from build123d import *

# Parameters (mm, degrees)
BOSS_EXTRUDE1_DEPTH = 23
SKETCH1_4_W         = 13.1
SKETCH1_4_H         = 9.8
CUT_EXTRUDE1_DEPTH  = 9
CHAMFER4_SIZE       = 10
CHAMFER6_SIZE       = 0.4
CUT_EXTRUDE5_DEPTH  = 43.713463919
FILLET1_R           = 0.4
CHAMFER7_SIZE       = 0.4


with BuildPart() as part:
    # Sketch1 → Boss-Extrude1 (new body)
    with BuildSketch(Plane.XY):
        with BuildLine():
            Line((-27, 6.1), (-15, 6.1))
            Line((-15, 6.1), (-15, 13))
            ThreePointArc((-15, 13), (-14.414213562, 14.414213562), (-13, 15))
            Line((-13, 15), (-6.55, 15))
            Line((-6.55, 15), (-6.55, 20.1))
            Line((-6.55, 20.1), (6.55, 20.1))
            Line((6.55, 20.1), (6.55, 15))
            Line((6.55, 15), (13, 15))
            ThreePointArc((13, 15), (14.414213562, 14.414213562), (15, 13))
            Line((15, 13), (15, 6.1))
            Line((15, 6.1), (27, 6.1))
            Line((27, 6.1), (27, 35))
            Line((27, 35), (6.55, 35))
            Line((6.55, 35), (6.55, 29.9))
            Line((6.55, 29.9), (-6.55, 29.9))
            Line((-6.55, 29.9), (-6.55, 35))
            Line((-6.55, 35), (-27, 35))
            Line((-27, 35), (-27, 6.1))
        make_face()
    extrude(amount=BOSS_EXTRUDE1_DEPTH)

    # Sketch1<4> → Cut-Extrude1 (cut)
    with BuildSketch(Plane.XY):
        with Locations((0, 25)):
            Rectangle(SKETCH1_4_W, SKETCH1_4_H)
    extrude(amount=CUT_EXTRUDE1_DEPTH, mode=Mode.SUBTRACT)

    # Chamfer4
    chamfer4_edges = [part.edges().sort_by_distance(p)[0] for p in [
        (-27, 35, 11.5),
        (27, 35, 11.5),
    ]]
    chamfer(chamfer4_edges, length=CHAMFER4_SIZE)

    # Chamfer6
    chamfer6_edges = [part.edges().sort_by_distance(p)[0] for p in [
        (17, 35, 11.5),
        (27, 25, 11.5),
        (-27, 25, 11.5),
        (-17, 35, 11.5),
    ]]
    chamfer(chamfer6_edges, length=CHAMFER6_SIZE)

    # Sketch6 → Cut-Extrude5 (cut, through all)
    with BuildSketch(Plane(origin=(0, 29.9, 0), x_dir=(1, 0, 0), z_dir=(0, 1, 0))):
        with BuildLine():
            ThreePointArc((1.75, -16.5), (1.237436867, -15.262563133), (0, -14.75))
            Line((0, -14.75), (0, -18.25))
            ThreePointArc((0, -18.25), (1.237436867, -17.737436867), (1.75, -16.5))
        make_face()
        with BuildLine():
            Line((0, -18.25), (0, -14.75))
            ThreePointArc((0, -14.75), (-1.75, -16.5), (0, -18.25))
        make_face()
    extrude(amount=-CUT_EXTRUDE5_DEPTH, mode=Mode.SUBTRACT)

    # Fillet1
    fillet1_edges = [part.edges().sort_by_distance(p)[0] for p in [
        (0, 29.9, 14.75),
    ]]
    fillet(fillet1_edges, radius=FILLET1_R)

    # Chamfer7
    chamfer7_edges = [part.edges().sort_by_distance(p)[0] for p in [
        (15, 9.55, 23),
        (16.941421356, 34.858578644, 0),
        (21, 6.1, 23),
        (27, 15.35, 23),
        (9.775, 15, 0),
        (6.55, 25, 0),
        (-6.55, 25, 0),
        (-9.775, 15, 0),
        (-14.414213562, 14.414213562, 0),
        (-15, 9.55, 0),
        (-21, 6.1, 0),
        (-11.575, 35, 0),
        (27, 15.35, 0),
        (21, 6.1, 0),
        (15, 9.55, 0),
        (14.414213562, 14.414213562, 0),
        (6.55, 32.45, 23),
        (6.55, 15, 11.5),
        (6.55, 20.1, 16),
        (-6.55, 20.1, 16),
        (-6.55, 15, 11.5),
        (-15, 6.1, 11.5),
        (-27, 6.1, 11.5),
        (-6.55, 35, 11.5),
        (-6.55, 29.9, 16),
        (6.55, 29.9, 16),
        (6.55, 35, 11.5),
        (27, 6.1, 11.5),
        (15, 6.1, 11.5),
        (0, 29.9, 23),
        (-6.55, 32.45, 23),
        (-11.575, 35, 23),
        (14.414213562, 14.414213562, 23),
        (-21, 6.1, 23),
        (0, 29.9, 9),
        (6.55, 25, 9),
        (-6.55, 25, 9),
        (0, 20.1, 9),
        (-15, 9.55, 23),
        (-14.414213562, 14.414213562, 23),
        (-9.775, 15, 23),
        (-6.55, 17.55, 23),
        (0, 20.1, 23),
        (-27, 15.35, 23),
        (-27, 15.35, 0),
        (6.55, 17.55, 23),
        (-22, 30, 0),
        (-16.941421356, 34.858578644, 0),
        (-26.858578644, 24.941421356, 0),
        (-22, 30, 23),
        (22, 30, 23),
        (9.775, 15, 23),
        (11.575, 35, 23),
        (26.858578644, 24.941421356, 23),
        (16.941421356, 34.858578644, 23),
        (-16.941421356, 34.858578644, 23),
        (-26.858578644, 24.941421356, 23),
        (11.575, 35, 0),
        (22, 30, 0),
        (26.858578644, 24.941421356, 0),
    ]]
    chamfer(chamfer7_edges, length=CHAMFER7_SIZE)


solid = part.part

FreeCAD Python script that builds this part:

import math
import FreeCAD as App
import Part
import Sketcher
Q = App.Units.Quantity


def edges_at(feature, points):
    """Names of the edges that pass closest to the given points."""
    edges = feature.Shape.Edges
    near = lambda p: min(range(len(edges)), key=lambda i: edges[i].distToShape(Part.Vertex(*p))[0])
    return sorted({f"Edge{near(p) + 1}" for p in points})

doc = App.newDocument("Part")
body = doc.addObject("PartDesign::Body", "Body")

sketch1 = doc.addObject("Sketcher::SketchObject", "Sketch")
body.addObject(sketch1)
sketch1.AttachmentSupport = (doc.XY_Plane, [""])
sketch1.MapMode = "FlatFace"
sketch1.addGeometry(Part.LineSegment(App.Vector(-27, 6.1, 0), App.Vector(-15, 6.1, 0)), False)
sketch1.addGeometry(Part.LineSegment(App.Vector(-15, 6.1, 0), App.Vector(-15, 13, 0)), False)
sketch1.addGeometry(Part.ArcOfCircle(Part.Circle(App.Vector(-13, 13, 0), App.Vector(0, 0, 1), 2), math.radians(90), math.radians(180)), False)
sketch1.addGeometry(Part.LineSegment(App.Vector(-13, 15, 0), App.Vector(-6.5, 15, 0)), False)
sketch1.addGeometry(Part.LineSegment(App.Vector(-6.5, 15, 0), App.Vector(-6.5, 20.1, 0)), False)
sketch1.addGeometry(Part.LineSegment(App.Vector(-6.5, 20.1, 0), App.Vector(6.5, 20.1, 0)), False)
sketch1.addGeometry(Part.LineSegment(App.Vector(6.5, 20.1, 0), App.Vector(6.5, 15, 0)), False)
sketch1.addGeometry(Part.LineSegment(App.Vector(6.5, 15, 0), App.Vector(13, 15, 0)), False)
sketch1.addGeometry(Part.ArcOfCircle(Part.Circle(App.Vector(13, 13, 0), App.Vector(0, 0, 1), 2), math.radians(0), math.radians(90)), False)
sketch1.addGeometry(Part.LineSegment(App.Vector(15, 13, 0), App.Vector(15, 6.1, 0)), False)
sketch1.addGeometry(Part.LineSegment(App.Vector(15, 6.1, 0), App.Vector(27, 6.1, 0)), False)
sketch1.addGeometry(Part.LineSegment(App.Vector(27, 6.1, 0), App.Vector(27, 35, 0)), False)
sketch1.addGeometry(Part.LineSegment(App.Vector(27, 35, 0), App.Vector(6.5, 35, 0)), False)
sketch1.addGeometry(Part.LineSegment(App.Vector(6.5, 35, 0), App.Vector(6.5, 29.9, 0)), False)
sketch1.addGeometry(Part.LineSegment(App.Vector(6.5, 29.9, 0), App.Vector(-6.5, 29.9, 0)), False)
sketch1.addGeometry(Part.LineSegment(App.Vector(-6.5, 29.9, 0), App.Vector(-6.5, 35, 0)), False)
sketch1.addGeometry(Part.LineSegment(App.Vector(-6.5, 35, 0), App.Vector(-27, 35, 0)), False)
sketch1.addGeometry(Part.LineSegment(App.Vector(-27, 35, 0), App.Vector(-27, 6.1, 0)), False)
sketch1.addConstraint(Sketcher.Constraint("Coincident", 0, 2, 1, 1))
sketch1.addConstraint(Sketcher.Constraint("Tangent", 1, 2, 2, 2))
sketch1.addConstraint(Sketcher.Constraint("Tangent", 2, 1, 3, 1))
sketch1.addConstraint(Sketcher.Constraint("Coincident", 3, 2, 4, 1))
sketch1.addConstraint(Sketcher.Constraint("Coincident", 4, 2, 5, 1))
sketch1.addConstraint(Sketcher.Constraint("Coincident", 5, 2, 6, 1))
sketch1.addConstraint(Sketcher.Constraint("Coincident", 6, 2, 7, 1))
sketch1.addConstraint(Sketcher.Constraint("Tangent", 7, 2, 8, 2))
sketch1.addConstraint(Sketcher.Constraint("Tangent", 8, 1, 9, 1))
sketch1.addConstraint(Sketcher.Constraint("Coincident", 9, 2, 10, 1))
sketch1.addConstraint(Sketcher.Constraint("Coincident", 10, 2, 11, 1))
sketch1.addConstraint(Sketcher.Constraint("Coincident", 11, 2, 12, 1))
sketch1.addConstraint(Sketcher.Constraint("Coincident", 12, 2, 13, 1))
sketch1.addConstraint(Sketcher.Constraint("Coincident", 13, 2, 14, 1))
sketch1.addConstraint(Sketcher.Constraint("Coincident", 14, 2, 15, 1))
sketch1.addConstraint(Sketcher.Constraint("Coincident", 15, 2, 16, 1))
sketch1.addConstraint(Sketcher.Constraint("Coincident", 16, 2, 17, 1))
sketch1.addConstraint(Sketcher.Constraint("Coincident", 17, 2, 0, 1))
sketch1.addConstraint(Sketcher.Constraint("Horizontal", 0))
sketch1.addConstraint(Sketcher.Constraint("Vertical", 1))
sketch1.addConstraint(Sketcher.Constraint("Horizontal", 3))
sketch1.addConstraint(Sketcher.Constraint("Vertical", 4))
sketch1.addConstraint(Sketcher.Constraint("Horizontal", 5))
sketch1.addConstraint(Sketcher.Constraint("Vertical", 6))
sketch1.addConstraint(Sketcher.Constraint("Horizontal", 7))
sketch1.addConstraint(Sketcher.Constraint("Vertical", 9))
sketch1.addConstraint(Sketcher.Constraint("Horizontal", 10))
sketch1.addConstraint(Sketcher.Constraint("Vertical", 11))
sketch1.addConstraint(Sketcher.Constraint("Horizontal", 12))
sketch1.addConstraint(Sketcher.Constraint("Vertical", 13))
sketch1.addConstraint(Sketcher.Constraint("Horizontal", 14))
sketch1.addConstraint(Sketcher.Constraint("Vertical", 15))
sketch1.addConstraint(Sketcher.Constraint("Horizontal", 16))
sketch1.addConstraint(Sketcher.Constraint("Vertical", 17))
sketch1.addConstraint(Sketcher.Constraint("Equal", 2, 8))
sketch1.addConstraint(Sketcher.Constraint("Symmetric", 2, 3, 8, 3, -2))
sketch1.addConstraint(Sketcher.Constraint("Symmetric", 12, 2, 15, 2, -2))
sketch1.addConstraint(Sketcher.Constraint("Symmetric", 10, 2, 17, 2, -2))
sketch1.addConstraint(Sketcher.Constraint("Vertical", 6, 2, 12, 2))
sketch1.addConstraint(Sketcher.Constraint("Vertical", 4, 2, 14, 2))
sketch1.addConstraint(Sketcher.Constraint("Equal", 6, 13))
sketch1.addConstraint(Sketcher.Constraint("Radius", 2, Q("2 mm")))
sketch1.addConstraint(Sketcher.Constraint("DistanceX", 0, 1, 0, 2, Q("12 mm")))
sketch1.addConstraint(Sketcher.Constraint("DistanceX", 5, 1, 5, 2, Q("13.1 mm")))
sketch1.addConstraint(Sketcher.Constraint("DistanceY", 1, 1, 1, 2, Q("6.9 mm")))
sketch1.addConstraint(Sketcher.Constraint("DistanceY", 4, 1, 4, 2, Q("5.1 mm")))
sketch1.addConstraint(Sketcher.Constraint("DistanceY", 11, 1, 11, 2, Q("28.9 mm")))
sketch1.addConstraint(Sketcher.Constraint("DistanceX", 2, 3, -1, 1, Q("13 mm")))
sketch1.addConstraint(Sketcher.Constraint("DistanceY", -1, 1, 2, 3, Q("13 mm")))
pad1 = doc.addObject("PartDesign::Pad", "Pad")
body.addObject(pad1)
pad1.Profile = sketch1
pad1.Length = 23

sketch2 = doc.addObject("Sketcher::SketchObject", "Sketch001")
body.addObject(sketch2)
sketch2.AttachmentSupport = (doc.XY_Plane, [""])
sketch2.MapMode = "FlatFace"
sketch2.addGeometry(Part.LineSegment(App.Vector(-7, 30, 0), App.Vector(-7, 20, 0)), False)
sketch2.addGeometry(Part.LineSegment(App.Vector(-7, 20, 0), App.Vector(7, 20, 0)), False)
sketch2.addGeometry(Part.LineSegment(App.Vector(7, 20, 0), App.Vector(7, 30, 0)), False)
sketch2.addGeometry(Part.LineSegment(App.Vector(7, 30, 0), App.Vector(-7, 30, 0)), False)
sketch2.addConstraint(Sketcher.Constraint("Coincident", 0, 2, 1, 1))
sketch2.addConstraint(Sketcher.Constraint("Coincident", 1, 2, 2, 1))
sketch2.addConstraint(Sketcher.Constraint("Coincident", 2, 2, 3, 1))
sketch2.addConstraint(Sketcher.Constraint("Coincident", 3, 2, 0, 1))
sketch2.addConstraint(Sketcher.Constraint("Vertical", 0))
sketch2.addConstraint(Sketcher.Constraint("Horizontal", 1))
sketch2.addConstraint(Sketcher.Constraint("Vertical", 2))
sketch2.addConstraint(Sketcher.Constraint("Horizontal", 3))
sketch2.addConstraint(Sketcher.Constraint("DistanceX", 1, 1, 1, 2, Q("13.1 mm")))
sketch2.addConstraint(Sketcher.Constraint("DistanceY", 0, 2, 0, 1, Q("9.8 mm")))
sketch2.addConstraint(Sketcher.Constraint("DistanceY", -1, 1, 0, 2, Q("20.1 mm")))
sketch2.addConstraint(Sketcher.Constraint("DistanceX", 0, 2, -1, 1, Q("6.55 mm")))
pocket1 = doc.addObject("PartDesign::Pocket", "Pocket")
body.addObject(pocket1)
pocket1.Profile = sketch2
pocket1.Length = 9
pocket1.Reversed = True
doc.recompute()

chamfer = doc.addObject("PartDesign::Chamfer", "Chamfer")
body.addObject(chamfer)
chamfer.Base = (pocket1, edges_at(pocket1, [(-27, 35, 11.5), (27, 35, 11.5)]))
chamfer.Size = 10
doc.recompute()

chamfer2 = doc.addObject("PartDesign::Chamfer", "Chamfer001")
body.addObject(chamfer2)
chamfer2.Base = (chamfer, edges_at(chamfer, [
    (17, 35, 11.5),
    (27, 25, 11.5),
    (-27, 25, 11.5),
    (-17, 35, 11.5),
]))
chamfer2.Size = 0.4

sketch3 = doc.addObject("Sketcher::SketchObject", "Sketch002")
body.addObject(sketch3)
sketch3.AttachmentSupport = (doc.XZ_Plane, [""])
sketch3.MapMode = "FlatFace"
sketch3.AttachmentOffset = App.Placement(App.Vector(0, 0, -29.9), App.Rotation())
sketch3.addGeometry(Part.ArcOfCircle(Part.Circle(App.Vector(0, 16.5, 0), App.Vector(0, 0, 1), 1.8), math.radians(-90), math.radians(0)), False)
sketch3.addGeometry(Part.ArcOfCircle(Part.Circle(App.Vector(0, 16.5, 0), App.Vector(0, 0, 1), 1.8), math.radians(90), math.radians(270)), False)
sketch3.addGeometry(Part.ArcOfCircle(Part.Circle(App.Vector(0, 16.5, 0), App.Vector(0, 0, 1), 1.8), math.radians(0), math.radians(90)), False)
sketch3.addConstraint(Sketcher.Constraint("Tangent", 0, 1, 1, 2))
sketch3.addConstraint(Sketcher.Constraint("Tangent", 1, 1, 2, 2))
sketch3.addConstraint(Sketcher.Constraint("Tangent", 2, 1, 0, 2))
sketch3.addConstraint(Sketcher.Constraint("PointOnObject", 0, 3, -2))
sketch3.addConstraint(Sketcher.Constraint("PointOnObject", 0, 1, -2))
sketch3.addConstraint(Sketcher.Constraint("PointOnObject", 1, 1, -2))
sketch3.addConstraint(Sketcher.Constraint("Horizontal", 1, 3, 2, 1))
sketch3.addConstraint(Sketcher.Constraint("Radius", 0, Q("1.75 mm")))
sketch3.addConstraint(Sketcher.Constraint("DistanceY", -1, 1, 0, 3, Q("16.5 mm")))
pocket2 = doc.addObject("PartDesign::Pocket", "Pocket001")
body.addObject(pocket2)
pocket2.Profile = sketch3
pocket2.Type = "ThroughAll"
pocket2.Reversed = True
doc.recompute()

fillet = doc.addObject("PartDesign::Fillet", "Fillet")
body.addObject(fillet)
fillet.Base = (pocket2, edges_at(pocket2, [(-1.75, 29.9, 16.5)]))
fillet.Radius = 0.4
doc.recompute()

chamfer3 = doc.addObject("PartDesign::Chamfer", "Chamfer002")
body.addObject(chamfer3)
chamfer3.Base = (fillet, edges_at(fillet, [
    (15, 9.55, 23),
    (16.941, 34.859, 0),
    (21, 6.1, 23),
    (27, 15.35, 23),
    (9.775, 15, 0),
    (6.55, 25, 0),
    (-6.55, 25, 0),
    (-9.775, 15, 0),
    (-14.414, 14.414, 0),
    (-15, 9.55, 0),
    (-21, 6.1, 0),
    (-11.575, 35, 0),
    (27, 15.35, 0),
    (21, 6.1, 0),
    (15, 9.55, 0),
    (14.414, 14.414, 0),
    (6.55, 32.45, 23),
    (6.55, 15, 11.5),
    (6.55, 20.1, 16),
    (-6.55, 20.1, 16),
    (-6.55, 15, 11.5),
    (-15, 6.1, 11.5),
    (-27, 6.1, 11.5),
    (-6.55, 35, 11.5),
    (-6.55, 29.9, 16),
    (6.55, 29.9, 16),
    (6.55, 35, 11.5),
    (27, 6.1, 11.5),
    (15, 6.1, 11.5),
    (0, 29.9, 23),
    (-6.55, 32.45, 23),
    (-11.575, 35, 23),
    (14.414, 14.414, 23),
    (-21, 6.1, 23),
    (0, 29.9, 9),
    (6.55, 25, 9),
    (-6.55, 25, 9),
    (0, 20.1, 9),
    (-15, 9.55, 23),
    (-14.414, 14.414, 23),
    (-9.775, 15, 23),
    (-6.55, 17.55, 23),
    (0, 20.1, 23),
    (-27, 15.35, 23),
    (-27, 15.35, 0),
    (6.55, 17.55, 23),
    (-22, 30, 0),
    (-16.941, 34.859, 0),
    (-26.859, 24.941, 0),
    (-22, 30, 23),
    (22, 30, 23),
    (9.775, 15, 23),
    (11.575, 35, 23),
    (26.859, 24.941, 23),
    (16.941, 34.859, 23),
    (-16.941, 34.859, 23),
    (-26.859, 24.941, 23),
    (11.575, 35, 0),
    (22, 30, 0),
    (26.859, 24.941, 0),
]))
chamfer3.Size = 0.4

doc.recompute()
